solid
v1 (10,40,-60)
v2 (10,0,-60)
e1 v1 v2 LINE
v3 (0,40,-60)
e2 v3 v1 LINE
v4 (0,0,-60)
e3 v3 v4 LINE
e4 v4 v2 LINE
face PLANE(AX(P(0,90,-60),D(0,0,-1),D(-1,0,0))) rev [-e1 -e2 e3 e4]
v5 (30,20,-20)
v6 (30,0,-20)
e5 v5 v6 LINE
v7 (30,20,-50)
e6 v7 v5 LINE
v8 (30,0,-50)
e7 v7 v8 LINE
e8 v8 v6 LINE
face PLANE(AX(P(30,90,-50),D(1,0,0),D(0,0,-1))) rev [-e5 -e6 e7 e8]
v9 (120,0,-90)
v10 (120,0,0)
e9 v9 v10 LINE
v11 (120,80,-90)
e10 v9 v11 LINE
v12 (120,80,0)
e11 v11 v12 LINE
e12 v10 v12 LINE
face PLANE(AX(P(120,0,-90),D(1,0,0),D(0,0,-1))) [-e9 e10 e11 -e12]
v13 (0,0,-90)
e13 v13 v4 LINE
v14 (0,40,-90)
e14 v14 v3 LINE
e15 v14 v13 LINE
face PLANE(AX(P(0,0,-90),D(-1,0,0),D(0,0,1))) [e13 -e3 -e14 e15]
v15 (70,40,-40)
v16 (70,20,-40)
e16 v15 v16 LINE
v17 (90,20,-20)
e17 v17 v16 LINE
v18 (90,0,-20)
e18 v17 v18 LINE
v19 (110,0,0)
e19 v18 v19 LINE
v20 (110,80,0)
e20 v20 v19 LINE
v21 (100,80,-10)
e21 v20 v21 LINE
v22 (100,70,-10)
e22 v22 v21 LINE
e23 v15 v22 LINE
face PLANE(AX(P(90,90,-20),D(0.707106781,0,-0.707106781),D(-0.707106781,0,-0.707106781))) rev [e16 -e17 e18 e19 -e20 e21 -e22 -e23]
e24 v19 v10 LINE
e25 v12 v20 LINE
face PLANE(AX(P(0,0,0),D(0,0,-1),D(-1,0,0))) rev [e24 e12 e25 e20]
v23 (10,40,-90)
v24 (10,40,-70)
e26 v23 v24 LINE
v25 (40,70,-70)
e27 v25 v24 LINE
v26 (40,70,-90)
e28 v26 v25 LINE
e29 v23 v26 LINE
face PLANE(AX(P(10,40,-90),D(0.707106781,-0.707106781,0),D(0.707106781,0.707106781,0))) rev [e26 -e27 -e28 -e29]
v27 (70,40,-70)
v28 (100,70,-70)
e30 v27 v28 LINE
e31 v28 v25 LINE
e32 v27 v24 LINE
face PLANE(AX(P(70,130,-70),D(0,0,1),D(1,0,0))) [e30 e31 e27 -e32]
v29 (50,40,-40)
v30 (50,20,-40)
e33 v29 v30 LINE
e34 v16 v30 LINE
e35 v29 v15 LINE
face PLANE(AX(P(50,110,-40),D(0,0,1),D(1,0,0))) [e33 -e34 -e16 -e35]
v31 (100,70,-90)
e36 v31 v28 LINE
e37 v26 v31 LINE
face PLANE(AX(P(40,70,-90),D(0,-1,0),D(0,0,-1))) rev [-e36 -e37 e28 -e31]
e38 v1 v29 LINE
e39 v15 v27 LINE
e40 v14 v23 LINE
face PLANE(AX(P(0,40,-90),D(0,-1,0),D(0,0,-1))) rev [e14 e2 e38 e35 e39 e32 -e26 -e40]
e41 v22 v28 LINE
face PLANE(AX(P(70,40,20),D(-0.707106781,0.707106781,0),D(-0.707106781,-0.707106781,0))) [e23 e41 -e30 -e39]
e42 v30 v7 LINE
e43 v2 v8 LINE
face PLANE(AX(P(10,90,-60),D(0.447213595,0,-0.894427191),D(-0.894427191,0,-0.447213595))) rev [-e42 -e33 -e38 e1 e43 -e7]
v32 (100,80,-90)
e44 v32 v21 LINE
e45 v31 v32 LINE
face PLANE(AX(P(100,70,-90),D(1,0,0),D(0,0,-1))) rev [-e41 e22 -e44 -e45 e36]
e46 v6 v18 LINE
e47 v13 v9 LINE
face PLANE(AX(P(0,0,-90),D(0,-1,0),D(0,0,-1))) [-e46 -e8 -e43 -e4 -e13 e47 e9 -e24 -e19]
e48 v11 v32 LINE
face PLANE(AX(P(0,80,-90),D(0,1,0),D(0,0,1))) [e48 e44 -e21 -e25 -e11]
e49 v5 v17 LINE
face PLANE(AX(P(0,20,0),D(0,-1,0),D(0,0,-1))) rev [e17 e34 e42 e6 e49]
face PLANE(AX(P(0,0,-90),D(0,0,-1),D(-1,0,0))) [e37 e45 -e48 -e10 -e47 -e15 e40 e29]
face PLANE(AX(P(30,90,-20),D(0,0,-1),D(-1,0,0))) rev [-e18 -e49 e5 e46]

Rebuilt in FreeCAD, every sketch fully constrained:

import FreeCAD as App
import Part
import Sketcher
from FreeCAD import Vector
Q = App.Units.Quantity

doc = App.newDocument("Part")
body = doc.addObject("PartDesign::Body", "Body")

sketch1 = body.newObject("Sketcher::SketchObject", "Sketch")
sketch1.AttachmentSupport = (doc.getObject("XY_Plane"), [""])
sketch1.MapMode = "FlatFace"
sketch1.addGeometry(Part.LineSegment(Vector(0, 80, 0), Vector(0, 0, 0)), False)
sketch1.addGeometry(Part.LineSegment(Vector(0, 0, 0), Vector(120, 0, 0)), False)
sketch1.addGeometry(Part.LineSegment(Vector(120, 0, 0), Vector(120, 80, 0)), False)
sketch1.addGeometry(Part.LineSegment(Vector(120, 80, 0), Vector(0, 80, 0)), False)
sketch1.addConstraint(Sketcher.Constraint("Coincident", 0, 2, 1, 1))
sketch1.addConstraint(Sketcher.Constraint("Coincident", 1, 2, 2, 1))
sketch1.addConstraint(Sketcher.Constraint("Coincident", 2, 2, 3, 1))
sketch1.addConstraint(Sketcher.Constraint("Coincident", 3, 2, 0, 1))
sketch1.addConstraint(Sketcher.Constraint("Vertical", 0))
sketch1.addConstraint(Sketcher.Constraint("Horizontal", 1))
sketch1.addConstraint(Sketcher.Constraint("Vertical", 2))
sketch1.addConstraint(Sketcher.Constraint("Horizontal", 3))
sketch1.addConstraint(Sketcher.Constraint("Coincident", 0, 2, -1, 1))
sketch1.addConstraint(Sketcher.Constraint("DistanceX", 1, 1, 1, 2, Q("120 mm")))
sketch1.addConstraint(Sketcher.Constraint("DistanceY", 0, 2, 0, 1, Q("80 mm")))
pad1 = body.newObject("PartDesign::Pad", "Pad")
pad1.Profile = sketch1
pad1.Length = 90
pad1.Reversed = True

sketch2 = body.newObject("Sketcher::SketchObject", "Sketch001")
sketch2.AttachmentSupport = (doc.getObject("XY_Plane"), [""])
sketch2.MapMode = "FlatFace"
sketch2.addGeometry(Part.LineSegment(Vector(0, 40, 0), Vector(10, 40, 0)), False)
sketch2.addGeometry(Part.LineSegment(Vector(10, 40, 0), Vector(40, 70, 0)), False)
sketch2.addGeometry(Part.LineSegment(Vector(40, 70, 0), Vector(100, 70, 0)), False)
sketch2.addGeometry(Part.LineSegment(Vector(100, 70, 0), Vector(100, 80, 0)), False)
sketch2.addGeometry(Part.LineSegment(Vector(100, 80, 0), Vector(0, 80, 0)), False)
sketch2.addGeometry(Part.LineSegment(Vector(0, 80, 0), Vector(0, 40, 0)), False)
sketch2.addConstraint(Sketcher.Constraint("Coincident", 0, 2, 1, 1))
sketch2.addConstraint(Sketcher.Constraint("Coincident", 1, 2, 2, 1))
sketch2.addConstraint(Sketcher.Constraint("Coincident", 2, 2, 3, 1))
sketch2.addConstraint(Sketcher.Constraint("Coincident", 3, 2, 4, 1))
sketch2.addConstraint(Sketcher.Constraint("Coincident", 4, 2, 5, 1))
sketch2.addConstraint(Sketcher.Constraint("Coincident", 5, 2, 0, 1))
sketch2.addConstraint(Sketcher.Constraint("Horizontal", 0))
sketch2.addConstraint(Sketcher.Constraint("Horizontal", 2))
sketch2.addConstraint(Sketcher.Constraint("Vertical", 3))
sketch2.addConstraint(Sketcher.Constraint("Horizontal", 4))
sketch2.addConstraint(Sketcher.Constraint("Vertical", 5))
sketch2.addConstraint(Sketcher.Constraint("PointOnObject", 4, 2, -2))
sketch2.addConstraint(Sketcher.Constraint("Equal", 0, 3))
sketch2.addConstraint(Sketcher.Constraint("DistanceX", 0, 1, 0, 2, Q("10 mm")))
sketch2.addConstraint(Sketcher.Constraint("DistanceX", 2, 1, 2, 2, Q("60 mm")))
sketch2.addConstraint(Sketcher.Constraint("DistanceX", 4, 2, 4, 1, Q("100 mm")))
sketch2.addConstraint(Sketcher.Constraint("DistanceY", 5, 2, 5, 1, Q("40 mm")))
sketch2.addConstraint(Sketcher.Constraint("DistanceY", -1, 1, 0, 2, Q("40 mm")))
pocket1 = body.newObject("PartDesign::Pocket", "Pocket")
pocket1.Profile = sketch2
pocket1.Length = 90

sketch3 = body.newObject("Sketcher::SketchObject", "Sketch002")
sketch3.AttachmentSupport = (doc.getObject("XZ_Plane"), [""])
sketch3.MapMode = "FlatFace"
sketch3.addGeometry(Part.LineSegment(Vector(0, -60, 0), Vector(10, -60, 0)), False)
sketch3.addGeometry(Part.LineSegment(Vector(10, -60, 0), Vector(30, -50, 0)), False)
sketch3.addGeometry(Part.LineSegment(Vector(30, -50, 0), Vector(30, -20, 0)), False)
sketch3.addGeometry(Part.LineSegment(Vector(30, -20, 0), Vector(90, -20, 0)), False)
sketch3.addGeometry(Part.LineSegment(Vector(90, -20, 0), Vector(110, 0, 0)), False)
sketch3.addGeometry(Part.LineSegment(Vector(110, 0, 0), Vector(0, 0, 0)), False)
sketch3.addGeometry(Part.LineSegment(Vector(0, 0, 0), Vector(0, -60, 0)), False)
sketch3.addConstraint(Sketcher.Constraint("Coincident", 0, 2, 1, 1))
sketch3.addConstraint(Sketcher.Constraint("Coincident", 1, 2, 2, 1))
sketch3.addConstraint(Sketcher.Constraint("Coincident", 2, 2, 3, 1))
sketch3.addConstraint(Sketcher.Constraint("Coincident", 3, 2, 4, 1))
sketch3.addConstraint(Sketcher.Constraint("Coincident", 4, 2, 5, 1))
sketch3.addConstraint(Sketcher.Constraint("Coincident", 5, 2, 6, 1))
sketch3.addConstraint(Sketcher.Constraint("Coincident", 6, 2, 0, 1))
sketch3.addConstraint(Sketcher.Constraint("Horizontal", 0))
sketch3.addConstraint(Sketcher.Constraint("Vertical", 2))
sketch3.addConstraint(Sketcher.Constraint("Horizontal", 3))
sketch3.addConstraint(Sketcher.Constraint("Horizontal", 5))
sketch3.addConstraint(Sketcher.Constraint("Vertical", 6))
sketch3.addConstraint(Sketcher.Constraint("Coincident", 5, 2, -1, 1))
sketch3.addConstraint(Sketcher.Constraint("Equal", 3, 6))
sketch3.addConstraint(Sketcher.Constraint("DistanceX", 0, 1, 0, 2, Q("10 mm")))
sketch3.addConstraint(Sketcher.Constraint("DistanceX", 3, 1, 3, 2, Q("60 mm")))
sketch3.addConstraint(Sketcher.Constraint("DistanceX", 5, 2, 5, 1, Q("110 mm")))
sketch3.addConstraint(Sketcher.Constraint("DistanceY", 2, 1, 2, 2, Q("30 mm")))
sketch3.addConstraint(Sketcher.Constraint("Angle", 4, Q("45 deg")))
sketch3.addConstraint(Sketcher.Constraint("DistanceX", -1, 1, 1, 2, Q("30 mm")))
pocket2 = body.newObject("PartDesign::Pocket", "Pocket001")
pocket2.Profile = sketch3
pocket2.Length = 90

sketch4 = body.newObject("Sketcher::SketchObject", "Sketch003")
sketch4.AttachmentSupport = (doc.getObject("XZ_Plane"), [""])
sketch4.MapMode = "FlatFace"
sketch4.AttachmentOffset = App.Placement(Vector(0, 0, -20), App.Rotation())
sketch4.addGeometry(Part.LineSegment(Vector(30, -50, 0), Vector(30, -20, 0)), False)
sketch4.addGeometry(Part.LineSegment(Vector(30, -20, 0), Vector(90, -20, 0)), False)
sketch4.addGeometry(Part.LineSegment(Vector(90, -20, 0), Vector(70, -40, 0)), False)
sketch4.addGeometry(Part.LineSegment(Vector(70, -40, 0), Vector(50, -40, 0)), False)
sketch4.addGeometry(Part.LineSegment(Vector(50, -40, 0), Vector(30, -50, 0)), False)
sketch4.addConstraint(Sketcher.Constraint("Coincident", 0, 2, 1, 1))
sketch4.addConstraint(Sketcher.Constraint("Coincident", 1, 2, 2, 1))
sketch4.addConstraint(Sketcher.Constraint("Coincident", 2, 2, 3, 1))
sketch4.addConstraint(Sketcher.Constraint("Coincident", 3, 2, 4, 1))
sketch4.addConstraint(Sketcher.Constraint("Coincident", 4, 2, 0, 1))
sketch4.addConstraint(Sketcher.Constraint("Vertical", 0))
sketch4.addConstraint(Sketcher.Constraint("Horizontal", 1))
sketch4.addConstraint(Sketcher.Constraint("Horizontal", 3))
sketch4.addConstraint(Sketcher.Constraint("DistanceX", 1, 1, 1, 2, Q("60 mm")))
sketch4.addConstraint(Sketcher.Constraint("DistanceX", 3, 2, 3, 1, Q("20 mm")))
sketch4.addConstraint(Sketcher.Constraint("DistanceY", 0, 1, 0, 2, Q("30 mm")))
sketch4.addConstraint(Sketcher.Constraint("Angle", 2, Q("-135 deg")))
sketch4.addConstraint(Sketcher.Constraint("DistanceX", -1, 1, 0, 2, Q("30 mm")))
sketch4.addConstraint(Sketcher.Constraint("DistanceY", 0, 2, -1, 1, Q("20 mm")))
sketch4.addConstraint(Sketcher.Constraint("DistanceX", -1, 1, 2, 2, Q("70 mm")))
pocket3 = body.newObject("PartDesign::Pocket", "Pocket002")
pocket3.Profile = sketch4
pocket3.Length = 90

sketch5 = body.newObject("Sketcher::SketchObject", "Sketch004")
sketch5.AttachmentSupport = (doc.getObject("XZ_Plane"), [""])
sketch5.MapMode = "FlatFace"
sketch5.AttachmentOffset = App.Placement(Vector(0, 0, -40), App.Rotation())
sketch5.addGeometry(Part.LineSegment(Vector(70, -40, 0), Vector(70, -70, 0)), False)
sketch5.addGeometry(Part.LineSegment(Vector(70, -70, 0), Vector(10, -70, 0)), False)
sketch5.addGeometry(Part.LineSegment(Vector(10, -70, 0), Vector(10, -60, 0)), False)
sketch5.addGeometry(Part.LineSegment(Vector(10, -60, 0), Vector(50, -40, 0)), False)
sketch5.addGeometry(Part.LineSegment(Vector(50, -40, 0), Vector(70, -40, 0)), False)
sketch5.addConstraint(Sketcher.Constraint("Coincident", 0, 2, 1, 1))
sketch5.addConstraint(Sketcher.Constraint("Coincident", 1, 2, 2, 1))
sketch5.addConstraint(Sketcher.Constraint("Coincident", 2, 2, 3, 1))
sketch5.addConstraint(Sketcher.Constraint("Coincident", 3, 2, 4, 1))
sketch5.addConstraint(Sketcher.Constraint("Coincident", 4, 2, 0, 1))
sketch5.addConstraint(Sketcher.Constraint("Vertical", 0))
sketch5.addConstraint(Sketcher.Constraint("Horizontal", 1))
sketch5.addConstraint(Sketcher.Constraint("Vertical", 2))
sketch5.addConstraint(Sketcher.Constraint("Horizontal", 4))
sketch5.addConstraint(Sketcher.Constraint("DistanceX", 1, 2, 1, 1, Q("60 mm")))
sketch5.addConstraint(Sketcher.Constraint("DistanceX", 4, 1, 4, 2, Q("20 mm")))
sketch5.addConstraint(Sketcher.Constraint("DistanceY", 0, 2, 0, 1, Q("30 mm")))
sketch5.addConstraint(Sketcher.Constraint("DistanceY", 2, 1, 2, 2, Q("10 mm")))
sketch5.addConstraint(Sketcher.Constraint("DistanceX", -1, 1, 0, 2, Q("70 mm")))
sketch5.addConstraint(Sketcher.Constraint("DistanceY", 0, 2, -1, 1, Q("70 mm")))
pocket4 = body.newObject("PartDesign::Pocket", "Pocket003")
pocket4.Profile = sketch5
pocket4.Length = 90

sketch6 = body.newObject("Sketcher::SketchObject", "Sketch005")
sketch6.AttachmentSupport = (doc.getObject("XY_Plane"), [""])
sketch6.MapMode = "FlatFace"
sketch6.AttachmentOffset = App.Placement(Vector(0, 0, -70), App.Rotation())
sketch6.addGeometry(Part.LineSegment(Vector(70, 40, 0), Vector(100, 70, 0)), False)
sketch6.addGeometry(Part.LineSegment(Vector(100, 70, 0), Vector(70, 70, 0)), False)
sketch6.addGeometry(Part.LineSegment(Vector(70, 70, 0), Vector(70, 40, 0)), False)
sketch6.addConstraint(Sketcher.Constraint("Coincident", 0, 2, 1, 1))
sketch6.addConstraint(Sketcher.Constraint("Coincident", 1, 2, 2, 1))
sketch6.addConstraint(Sketcher.Constraint("Coincident", 2, 2, 0, 1))
sketch6.addConstraint(Sketcher.Constraint("Horizontal", 1))
sketch6.addConstraint(Sketcher.Constraint("Vertical", 2))
sketch6.addConstraint(Sketcher.Constraint("Equal", 1, 2))
sketch6.addConstraint(Sketcher.Constraint("DistanceX", 1, 2, 1, 1, Q("30 mm")))
sketch6.addConstraint(Sketcher.Constraint("DistanceX", -1, 1, 0, 2, Q("100 mm")))
sketch6.addConstraint(Sketcher.Constraint("DistanceY", -1, 1, 0, 2, Q("70 mm")))
pocket5 = body.newObject("PartDesign::Pocket", "Pocket004")
pocket5.Profile = sketch6
pocket5.Length = 90
pocket5.Reversed = True

doc.recompute()
